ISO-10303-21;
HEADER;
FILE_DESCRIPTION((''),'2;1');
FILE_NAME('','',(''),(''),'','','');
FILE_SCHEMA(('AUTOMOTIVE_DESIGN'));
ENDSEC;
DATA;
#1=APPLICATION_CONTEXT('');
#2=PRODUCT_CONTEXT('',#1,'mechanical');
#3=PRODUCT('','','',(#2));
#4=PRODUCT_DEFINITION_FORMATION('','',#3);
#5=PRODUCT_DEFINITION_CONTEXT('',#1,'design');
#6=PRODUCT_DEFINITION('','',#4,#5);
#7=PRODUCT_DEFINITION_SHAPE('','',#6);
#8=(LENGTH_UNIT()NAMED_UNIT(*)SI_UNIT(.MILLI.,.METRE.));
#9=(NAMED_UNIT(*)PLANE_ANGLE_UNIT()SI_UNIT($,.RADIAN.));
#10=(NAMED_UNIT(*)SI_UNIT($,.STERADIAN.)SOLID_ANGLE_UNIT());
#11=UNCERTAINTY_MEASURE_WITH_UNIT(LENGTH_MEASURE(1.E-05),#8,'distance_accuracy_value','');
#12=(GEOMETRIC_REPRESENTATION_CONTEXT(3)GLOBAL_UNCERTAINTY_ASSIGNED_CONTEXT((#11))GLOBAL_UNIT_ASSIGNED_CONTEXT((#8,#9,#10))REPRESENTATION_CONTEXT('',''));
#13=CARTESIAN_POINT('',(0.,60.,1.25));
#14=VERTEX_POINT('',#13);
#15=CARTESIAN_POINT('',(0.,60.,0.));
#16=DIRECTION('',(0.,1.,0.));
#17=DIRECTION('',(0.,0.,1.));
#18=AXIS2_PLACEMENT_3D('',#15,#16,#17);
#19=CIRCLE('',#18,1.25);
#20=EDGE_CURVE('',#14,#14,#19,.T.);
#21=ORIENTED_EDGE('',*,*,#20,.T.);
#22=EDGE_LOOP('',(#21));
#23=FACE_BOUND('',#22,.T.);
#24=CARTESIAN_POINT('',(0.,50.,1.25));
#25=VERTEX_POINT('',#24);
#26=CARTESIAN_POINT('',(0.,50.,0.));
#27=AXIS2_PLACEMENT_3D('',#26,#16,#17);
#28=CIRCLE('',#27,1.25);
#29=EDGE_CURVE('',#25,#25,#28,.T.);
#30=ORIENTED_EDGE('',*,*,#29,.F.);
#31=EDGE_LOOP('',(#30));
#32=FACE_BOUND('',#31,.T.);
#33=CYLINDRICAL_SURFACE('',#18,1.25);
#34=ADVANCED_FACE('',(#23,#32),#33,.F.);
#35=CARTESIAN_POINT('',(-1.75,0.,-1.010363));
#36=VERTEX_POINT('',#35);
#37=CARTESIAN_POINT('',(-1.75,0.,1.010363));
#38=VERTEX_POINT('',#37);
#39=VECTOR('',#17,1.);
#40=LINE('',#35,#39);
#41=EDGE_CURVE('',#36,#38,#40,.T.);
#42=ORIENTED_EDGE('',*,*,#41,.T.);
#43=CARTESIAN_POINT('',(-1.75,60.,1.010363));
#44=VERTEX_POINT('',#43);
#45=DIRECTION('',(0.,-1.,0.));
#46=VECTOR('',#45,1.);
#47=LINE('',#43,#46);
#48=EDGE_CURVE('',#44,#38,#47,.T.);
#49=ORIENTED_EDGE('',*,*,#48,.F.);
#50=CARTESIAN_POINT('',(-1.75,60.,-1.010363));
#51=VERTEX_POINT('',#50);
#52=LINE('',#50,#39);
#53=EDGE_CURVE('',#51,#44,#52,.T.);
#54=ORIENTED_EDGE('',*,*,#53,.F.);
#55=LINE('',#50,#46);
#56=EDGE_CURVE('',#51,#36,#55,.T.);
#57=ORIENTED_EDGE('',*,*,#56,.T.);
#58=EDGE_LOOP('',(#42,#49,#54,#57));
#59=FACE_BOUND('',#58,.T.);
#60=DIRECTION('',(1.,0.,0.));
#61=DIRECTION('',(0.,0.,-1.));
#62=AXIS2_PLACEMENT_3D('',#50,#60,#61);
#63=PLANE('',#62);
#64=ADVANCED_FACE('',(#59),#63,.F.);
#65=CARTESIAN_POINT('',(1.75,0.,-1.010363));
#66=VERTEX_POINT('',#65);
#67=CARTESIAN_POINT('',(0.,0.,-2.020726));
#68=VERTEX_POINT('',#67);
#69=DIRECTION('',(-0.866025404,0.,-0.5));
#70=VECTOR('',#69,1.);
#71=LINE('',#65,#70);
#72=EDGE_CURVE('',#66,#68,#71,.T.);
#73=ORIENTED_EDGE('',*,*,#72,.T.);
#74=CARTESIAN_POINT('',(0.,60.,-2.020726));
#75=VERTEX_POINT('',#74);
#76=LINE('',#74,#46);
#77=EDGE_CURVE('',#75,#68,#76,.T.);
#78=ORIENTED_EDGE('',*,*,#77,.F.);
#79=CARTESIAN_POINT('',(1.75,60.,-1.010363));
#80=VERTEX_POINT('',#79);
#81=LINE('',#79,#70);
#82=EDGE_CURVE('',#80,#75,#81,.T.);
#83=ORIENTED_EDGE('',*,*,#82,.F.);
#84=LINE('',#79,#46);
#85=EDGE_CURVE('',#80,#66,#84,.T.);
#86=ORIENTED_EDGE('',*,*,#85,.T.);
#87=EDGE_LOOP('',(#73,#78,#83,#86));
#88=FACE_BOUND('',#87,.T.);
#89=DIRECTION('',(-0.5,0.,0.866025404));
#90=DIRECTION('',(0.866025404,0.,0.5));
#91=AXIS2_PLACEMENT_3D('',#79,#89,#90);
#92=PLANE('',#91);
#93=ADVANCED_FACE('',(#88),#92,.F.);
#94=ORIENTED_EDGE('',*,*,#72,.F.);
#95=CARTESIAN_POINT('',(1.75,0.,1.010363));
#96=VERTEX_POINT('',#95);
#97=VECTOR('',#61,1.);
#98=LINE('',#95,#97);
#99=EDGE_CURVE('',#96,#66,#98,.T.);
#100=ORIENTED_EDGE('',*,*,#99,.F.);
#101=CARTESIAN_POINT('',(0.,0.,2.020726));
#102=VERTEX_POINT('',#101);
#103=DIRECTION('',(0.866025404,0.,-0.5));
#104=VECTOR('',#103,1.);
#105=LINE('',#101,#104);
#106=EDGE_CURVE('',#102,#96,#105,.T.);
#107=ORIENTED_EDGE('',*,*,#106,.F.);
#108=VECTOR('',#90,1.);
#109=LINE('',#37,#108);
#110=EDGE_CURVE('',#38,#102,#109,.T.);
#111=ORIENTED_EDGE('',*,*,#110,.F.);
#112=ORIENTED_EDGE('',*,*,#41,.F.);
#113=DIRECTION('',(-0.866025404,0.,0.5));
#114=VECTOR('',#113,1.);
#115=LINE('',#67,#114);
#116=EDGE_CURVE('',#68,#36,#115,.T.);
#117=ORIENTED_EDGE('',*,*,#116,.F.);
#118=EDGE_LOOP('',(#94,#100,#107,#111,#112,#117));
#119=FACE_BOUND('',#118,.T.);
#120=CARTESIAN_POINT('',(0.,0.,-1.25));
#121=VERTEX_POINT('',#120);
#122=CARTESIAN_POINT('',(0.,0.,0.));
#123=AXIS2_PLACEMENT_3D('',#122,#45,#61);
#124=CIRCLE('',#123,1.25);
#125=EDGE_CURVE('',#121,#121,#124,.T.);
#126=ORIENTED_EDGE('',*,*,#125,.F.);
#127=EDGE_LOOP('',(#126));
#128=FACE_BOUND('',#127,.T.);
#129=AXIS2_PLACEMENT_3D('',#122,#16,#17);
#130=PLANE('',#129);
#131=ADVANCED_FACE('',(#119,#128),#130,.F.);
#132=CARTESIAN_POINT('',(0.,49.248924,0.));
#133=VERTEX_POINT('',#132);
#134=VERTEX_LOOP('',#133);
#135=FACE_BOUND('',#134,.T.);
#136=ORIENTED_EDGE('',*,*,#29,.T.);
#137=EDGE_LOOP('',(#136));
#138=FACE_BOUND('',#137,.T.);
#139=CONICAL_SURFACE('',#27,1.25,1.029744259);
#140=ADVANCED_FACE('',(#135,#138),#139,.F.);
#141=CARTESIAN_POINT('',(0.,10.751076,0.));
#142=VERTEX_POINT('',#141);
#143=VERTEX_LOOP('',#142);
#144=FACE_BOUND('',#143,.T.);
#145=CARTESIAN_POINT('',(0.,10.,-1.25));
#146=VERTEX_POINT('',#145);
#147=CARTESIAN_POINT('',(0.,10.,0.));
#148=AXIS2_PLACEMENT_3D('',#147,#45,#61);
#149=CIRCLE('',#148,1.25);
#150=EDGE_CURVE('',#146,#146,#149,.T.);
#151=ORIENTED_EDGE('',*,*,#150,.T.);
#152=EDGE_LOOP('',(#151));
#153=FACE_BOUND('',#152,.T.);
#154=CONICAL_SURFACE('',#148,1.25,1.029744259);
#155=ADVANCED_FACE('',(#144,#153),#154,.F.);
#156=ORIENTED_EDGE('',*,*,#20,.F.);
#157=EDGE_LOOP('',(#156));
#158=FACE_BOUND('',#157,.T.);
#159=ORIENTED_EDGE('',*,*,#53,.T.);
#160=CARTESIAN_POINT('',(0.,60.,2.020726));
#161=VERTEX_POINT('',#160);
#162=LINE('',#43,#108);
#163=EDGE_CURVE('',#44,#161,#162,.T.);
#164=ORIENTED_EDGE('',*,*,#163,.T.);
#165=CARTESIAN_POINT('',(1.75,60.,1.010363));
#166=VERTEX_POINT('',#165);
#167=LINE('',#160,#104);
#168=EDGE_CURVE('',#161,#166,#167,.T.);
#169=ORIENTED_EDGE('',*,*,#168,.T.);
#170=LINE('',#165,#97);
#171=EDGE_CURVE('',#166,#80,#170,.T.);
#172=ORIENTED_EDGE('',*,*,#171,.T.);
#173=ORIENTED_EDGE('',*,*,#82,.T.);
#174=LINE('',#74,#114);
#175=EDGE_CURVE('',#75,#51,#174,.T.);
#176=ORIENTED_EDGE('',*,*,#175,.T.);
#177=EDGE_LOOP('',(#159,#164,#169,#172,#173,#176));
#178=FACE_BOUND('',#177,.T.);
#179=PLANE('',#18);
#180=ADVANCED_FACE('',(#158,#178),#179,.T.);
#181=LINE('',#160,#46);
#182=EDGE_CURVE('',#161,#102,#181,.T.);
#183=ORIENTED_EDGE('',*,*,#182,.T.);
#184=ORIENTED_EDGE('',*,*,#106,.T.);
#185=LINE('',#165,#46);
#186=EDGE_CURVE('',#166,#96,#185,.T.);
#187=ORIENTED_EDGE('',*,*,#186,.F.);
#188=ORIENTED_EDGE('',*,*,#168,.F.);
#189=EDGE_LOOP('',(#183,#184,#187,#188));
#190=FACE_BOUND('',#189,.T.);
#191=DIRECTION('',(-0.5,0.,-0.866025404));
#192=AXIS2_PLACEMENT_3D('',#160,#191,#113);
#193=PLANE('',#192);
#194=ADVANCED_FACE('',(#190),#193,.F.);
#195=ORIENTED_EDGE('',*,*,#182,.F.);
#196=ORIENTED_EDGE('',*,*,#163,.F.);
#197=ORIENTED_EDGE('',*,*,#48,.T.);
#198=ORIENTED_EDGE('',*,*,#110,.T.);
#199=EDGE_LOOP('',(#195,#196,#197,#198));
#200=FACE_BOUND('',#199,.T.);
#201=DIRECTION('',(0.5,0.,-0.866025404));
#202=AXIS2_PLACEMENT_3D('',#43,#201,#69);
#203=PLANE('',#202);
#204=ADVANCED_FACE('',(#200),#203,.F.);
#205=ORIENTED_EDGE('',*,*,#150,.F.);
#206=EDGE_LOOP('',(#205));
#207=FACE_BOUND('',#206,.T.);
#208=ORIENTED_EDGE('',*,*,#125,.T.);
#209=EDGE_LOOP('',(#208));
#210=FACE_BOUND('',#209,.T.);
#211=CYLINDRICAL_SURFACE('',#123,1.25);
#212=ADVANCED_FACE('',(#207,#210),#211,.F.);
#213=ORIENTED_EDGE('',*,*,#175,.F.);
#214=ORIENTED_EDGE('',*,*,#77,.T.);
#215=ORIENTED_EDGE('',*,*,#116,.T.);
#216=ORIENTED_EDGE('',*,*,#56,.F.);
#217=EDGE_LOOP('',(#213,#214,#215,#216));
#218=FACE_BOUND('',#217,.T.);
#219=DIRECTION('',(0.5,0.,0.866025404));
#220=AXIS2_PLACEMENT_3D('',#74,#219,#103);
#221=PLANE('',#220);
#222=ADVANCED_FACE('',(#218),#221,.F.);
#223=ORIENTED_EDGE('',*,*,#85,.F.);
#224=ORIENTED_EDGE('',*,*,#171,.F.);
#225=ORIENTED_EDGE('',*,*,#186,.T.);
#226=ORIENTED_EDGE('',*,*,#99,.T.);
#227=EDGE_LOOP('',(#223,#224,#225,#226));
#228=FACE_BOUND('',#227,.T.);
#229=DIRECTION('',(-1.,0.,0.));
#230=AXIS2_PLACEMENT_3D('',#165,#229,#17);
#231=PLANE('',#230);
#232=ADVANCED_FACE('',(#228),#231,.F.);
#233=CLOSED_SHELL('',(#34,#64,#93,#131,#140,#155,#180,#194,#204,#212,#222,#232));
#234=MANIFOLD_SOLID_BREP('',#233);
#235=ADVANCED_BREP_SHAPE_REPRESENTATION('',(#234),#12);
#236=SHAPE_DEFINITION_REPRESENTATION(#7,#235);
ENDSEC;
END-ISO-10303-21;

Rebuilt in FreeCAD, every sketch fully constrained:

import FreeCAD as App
import Part
import Sketcher
from FreeCAD import Vector
Q = App.Units.Quantity

doc = App.newDocument("Part")
params = doc.addObject("Spreadsheet::Sheet", "Params")
for row, (alias, value) in enumerate([
    ("pad1_length", "60 mm"),
    ("sketch2_diameter", "2.5 mm"),
    ("hole_diameter", "2.5 mm"),
    ("hole_depth", "10 mm"),
    ("sketch3_diameter", "2.5 mm"),
    ("hole2_diameter", "2.5 mm"),
    ("hole2_depth", "10 mm"),
], start=1):
    params.set(f"A{row}", alias)
    params.set(f"B{row}", "=" + value)
    params.setAlias(f"B{row}", alias)

body = doc.addObject("PartDesign::Body", "Body")

sketch1 = doc.addObject("Sketcher::SketchObject", "Sketch")
body.addObject(sketch1)
sketch1.AttachmentSupport = (doc.XZ_Plane, [""])
sketch1.MapMode = "FlatFace"
sketch1.addGeometry(Part.LineSegment(Vector(0, -2, 0), Vector(-1.8, -1, 0)), False)
sketch1.addGeometry(Part.LineSegment(Vector(-1.8, -1, 0), Vector(-1.8, 1, 0)), False)
sketch1.addGeometry(Part.LineSegment(Vector(-1.8, 1, 0), Vector(0, 2, 0)), False)
sketch1.addGeometry(Part.LineSegment(Vector(0, 2, 0), Vector(1.8, 1, 0)), False)
sketch1.addGeometry(Part.LineSegment(Vector(1.8, 1, 0), Vector(1.8, -1, 0)), False)
sketch1.addGeometry(Part.LineSegment(Vector(1.8, -1, 0), Vector(0, -2, 0)), False)
sketch1.addConstraint(Sketcher.Constraint("Coincident", 0, 2, 1, 1))
sketch1.addConstraint(Sketcher.Constraint("Coincident", 1, 2, 2, 1))
sketch1.addConstraint(Sketcher.Constraint("Coincident", 2, 2, 3, 1))
sketch1.addConstraint(Sketcher.Constraint("Coincident", 3, 2, 4, 1))
sketch1.addConstraint(Sketcher.Constraint("Coincident", 4, 2, 5, 1))
sketch1.addConstraint(Sketcher.Constraint("Coincident", 5, 2, 0, 1))
sketch1.addConstraint(Sketcher.Constraint("Vertical", 1))
sketch1.addConstraint(Sketcher.Constraint("Vertical", 4))
sketch1.addConstraint(Sketcher.Constraint("Symmetric", 0, 2, 3, 2, -1, 1))
sketch1.addConstraint(Sketcher.Constraint("Symmetric", 2, 2, 5, 2, -1, 1))
sketch1.addConstraint(Sketcher.Constraint("PointOnObject", 2, 2, -2))
sketch1.addConstraint(Sketcher.Constraint("Parallel", 2, 5))
sketch1.addConstraint(Sketcher.Constraint("Horizontal", 1, 2, 3, 2))
sketch1.addConstraint(Sketcher.Constraint("Angle", 0, Q("150 deg")))
sketch1.addConstraint(Sketcher.Constraint("DistanceX", 1, 2, 3, 2, Q("3.5 mm")))
sketch1.addConstraint(Sketcher.Constraint("DistanceY", 1, 1, 1, 2, Q("2.020726 mm")))
pad1 = doc.addObject("PartDesign::Pad", "Pad")
body.addObject(pad1)
pad1.Profile = sketch1
pad1.setExpression("Length", "Params.pad1_length")
pad1.Reversed = True

sketch2 = doc.addObject("Sketcher::SketchObject", "Sketch001")
body.addObject(sketch2)
sketch2.AttachmentSupport = (doc.XZ_Plane, [""])
sketch2.MapMode = "FlatFace"
sketch2.AttachmentOffset = App.Placement(Vector(0, 0, -60), App.Rotation())
sketch2.addGeometry(Part.Circle(Vector(0, 0, 0), Vector(0, 0, 1), 1.2), False)
sketch2.addConstraint(Sketcher.Constraint("Coincident", 0, 3, -1, 1))
sketch2.addConstraint(Sketcher.Constraint("Diameter", 0, Q("2.5 mm")))
sketch2.setExpression("Constraints[1]", "Params.sketch2_diameter")
doc.recompute()
hole = doc.addObject("PartDesign::Hole", "Hole")
body.addObject(hole)
hole.Profile = sketch2
hole.ThreadType = "None"
hole.setExpression("Diameter", "Params.hole_diameter")
hole.DepthType = "Dimension"
hole.setExpression("Depth", "Params.hole_depth")
hole.DrillPoint = "Angled"
hole.DrillPointAngle = 118
hole.Reversed = True

sketch3 = doc.addObject("Sketcher::SketchObject", "Sketch002")
body.addObject(sketch3)
sketch3.AttachmentSupport = (doc.XZ_Plane, [""])
sketch3.MapMode = "FlatFace"
sketch3.addGeometry(Part.Circle(Vector(0, 0, 0), Vector(0, 0, 1), 1.2), False)
sketch3.addConstraint(Sketcher.Constraint("Coincident", 0, 3, -1, 1))
sketch3.addConstraint(Sketcher.Constraint("Diameter", 0, Q("2.5 mm")))
sketch3.setExpression("Constraints[1]", "Params.sketch3_diameter")
doc.recompute()
hole2 = doc.addObject("PartDesign::Hole", "Hole001")
body.addObject(hole2)
hole2.Profile = sketch3
hole2.ThreadType = "None"
hole2.setExpression("Diameter", "Params.hole2_diameter")
hole2.DepthType = "Dimension"
hole2.setExpression("Depth", "Params.hole2_depth")
hole2.DrillPoint = "Angled"
hole2.DrillPointAngle = 118

doc.recompute()
